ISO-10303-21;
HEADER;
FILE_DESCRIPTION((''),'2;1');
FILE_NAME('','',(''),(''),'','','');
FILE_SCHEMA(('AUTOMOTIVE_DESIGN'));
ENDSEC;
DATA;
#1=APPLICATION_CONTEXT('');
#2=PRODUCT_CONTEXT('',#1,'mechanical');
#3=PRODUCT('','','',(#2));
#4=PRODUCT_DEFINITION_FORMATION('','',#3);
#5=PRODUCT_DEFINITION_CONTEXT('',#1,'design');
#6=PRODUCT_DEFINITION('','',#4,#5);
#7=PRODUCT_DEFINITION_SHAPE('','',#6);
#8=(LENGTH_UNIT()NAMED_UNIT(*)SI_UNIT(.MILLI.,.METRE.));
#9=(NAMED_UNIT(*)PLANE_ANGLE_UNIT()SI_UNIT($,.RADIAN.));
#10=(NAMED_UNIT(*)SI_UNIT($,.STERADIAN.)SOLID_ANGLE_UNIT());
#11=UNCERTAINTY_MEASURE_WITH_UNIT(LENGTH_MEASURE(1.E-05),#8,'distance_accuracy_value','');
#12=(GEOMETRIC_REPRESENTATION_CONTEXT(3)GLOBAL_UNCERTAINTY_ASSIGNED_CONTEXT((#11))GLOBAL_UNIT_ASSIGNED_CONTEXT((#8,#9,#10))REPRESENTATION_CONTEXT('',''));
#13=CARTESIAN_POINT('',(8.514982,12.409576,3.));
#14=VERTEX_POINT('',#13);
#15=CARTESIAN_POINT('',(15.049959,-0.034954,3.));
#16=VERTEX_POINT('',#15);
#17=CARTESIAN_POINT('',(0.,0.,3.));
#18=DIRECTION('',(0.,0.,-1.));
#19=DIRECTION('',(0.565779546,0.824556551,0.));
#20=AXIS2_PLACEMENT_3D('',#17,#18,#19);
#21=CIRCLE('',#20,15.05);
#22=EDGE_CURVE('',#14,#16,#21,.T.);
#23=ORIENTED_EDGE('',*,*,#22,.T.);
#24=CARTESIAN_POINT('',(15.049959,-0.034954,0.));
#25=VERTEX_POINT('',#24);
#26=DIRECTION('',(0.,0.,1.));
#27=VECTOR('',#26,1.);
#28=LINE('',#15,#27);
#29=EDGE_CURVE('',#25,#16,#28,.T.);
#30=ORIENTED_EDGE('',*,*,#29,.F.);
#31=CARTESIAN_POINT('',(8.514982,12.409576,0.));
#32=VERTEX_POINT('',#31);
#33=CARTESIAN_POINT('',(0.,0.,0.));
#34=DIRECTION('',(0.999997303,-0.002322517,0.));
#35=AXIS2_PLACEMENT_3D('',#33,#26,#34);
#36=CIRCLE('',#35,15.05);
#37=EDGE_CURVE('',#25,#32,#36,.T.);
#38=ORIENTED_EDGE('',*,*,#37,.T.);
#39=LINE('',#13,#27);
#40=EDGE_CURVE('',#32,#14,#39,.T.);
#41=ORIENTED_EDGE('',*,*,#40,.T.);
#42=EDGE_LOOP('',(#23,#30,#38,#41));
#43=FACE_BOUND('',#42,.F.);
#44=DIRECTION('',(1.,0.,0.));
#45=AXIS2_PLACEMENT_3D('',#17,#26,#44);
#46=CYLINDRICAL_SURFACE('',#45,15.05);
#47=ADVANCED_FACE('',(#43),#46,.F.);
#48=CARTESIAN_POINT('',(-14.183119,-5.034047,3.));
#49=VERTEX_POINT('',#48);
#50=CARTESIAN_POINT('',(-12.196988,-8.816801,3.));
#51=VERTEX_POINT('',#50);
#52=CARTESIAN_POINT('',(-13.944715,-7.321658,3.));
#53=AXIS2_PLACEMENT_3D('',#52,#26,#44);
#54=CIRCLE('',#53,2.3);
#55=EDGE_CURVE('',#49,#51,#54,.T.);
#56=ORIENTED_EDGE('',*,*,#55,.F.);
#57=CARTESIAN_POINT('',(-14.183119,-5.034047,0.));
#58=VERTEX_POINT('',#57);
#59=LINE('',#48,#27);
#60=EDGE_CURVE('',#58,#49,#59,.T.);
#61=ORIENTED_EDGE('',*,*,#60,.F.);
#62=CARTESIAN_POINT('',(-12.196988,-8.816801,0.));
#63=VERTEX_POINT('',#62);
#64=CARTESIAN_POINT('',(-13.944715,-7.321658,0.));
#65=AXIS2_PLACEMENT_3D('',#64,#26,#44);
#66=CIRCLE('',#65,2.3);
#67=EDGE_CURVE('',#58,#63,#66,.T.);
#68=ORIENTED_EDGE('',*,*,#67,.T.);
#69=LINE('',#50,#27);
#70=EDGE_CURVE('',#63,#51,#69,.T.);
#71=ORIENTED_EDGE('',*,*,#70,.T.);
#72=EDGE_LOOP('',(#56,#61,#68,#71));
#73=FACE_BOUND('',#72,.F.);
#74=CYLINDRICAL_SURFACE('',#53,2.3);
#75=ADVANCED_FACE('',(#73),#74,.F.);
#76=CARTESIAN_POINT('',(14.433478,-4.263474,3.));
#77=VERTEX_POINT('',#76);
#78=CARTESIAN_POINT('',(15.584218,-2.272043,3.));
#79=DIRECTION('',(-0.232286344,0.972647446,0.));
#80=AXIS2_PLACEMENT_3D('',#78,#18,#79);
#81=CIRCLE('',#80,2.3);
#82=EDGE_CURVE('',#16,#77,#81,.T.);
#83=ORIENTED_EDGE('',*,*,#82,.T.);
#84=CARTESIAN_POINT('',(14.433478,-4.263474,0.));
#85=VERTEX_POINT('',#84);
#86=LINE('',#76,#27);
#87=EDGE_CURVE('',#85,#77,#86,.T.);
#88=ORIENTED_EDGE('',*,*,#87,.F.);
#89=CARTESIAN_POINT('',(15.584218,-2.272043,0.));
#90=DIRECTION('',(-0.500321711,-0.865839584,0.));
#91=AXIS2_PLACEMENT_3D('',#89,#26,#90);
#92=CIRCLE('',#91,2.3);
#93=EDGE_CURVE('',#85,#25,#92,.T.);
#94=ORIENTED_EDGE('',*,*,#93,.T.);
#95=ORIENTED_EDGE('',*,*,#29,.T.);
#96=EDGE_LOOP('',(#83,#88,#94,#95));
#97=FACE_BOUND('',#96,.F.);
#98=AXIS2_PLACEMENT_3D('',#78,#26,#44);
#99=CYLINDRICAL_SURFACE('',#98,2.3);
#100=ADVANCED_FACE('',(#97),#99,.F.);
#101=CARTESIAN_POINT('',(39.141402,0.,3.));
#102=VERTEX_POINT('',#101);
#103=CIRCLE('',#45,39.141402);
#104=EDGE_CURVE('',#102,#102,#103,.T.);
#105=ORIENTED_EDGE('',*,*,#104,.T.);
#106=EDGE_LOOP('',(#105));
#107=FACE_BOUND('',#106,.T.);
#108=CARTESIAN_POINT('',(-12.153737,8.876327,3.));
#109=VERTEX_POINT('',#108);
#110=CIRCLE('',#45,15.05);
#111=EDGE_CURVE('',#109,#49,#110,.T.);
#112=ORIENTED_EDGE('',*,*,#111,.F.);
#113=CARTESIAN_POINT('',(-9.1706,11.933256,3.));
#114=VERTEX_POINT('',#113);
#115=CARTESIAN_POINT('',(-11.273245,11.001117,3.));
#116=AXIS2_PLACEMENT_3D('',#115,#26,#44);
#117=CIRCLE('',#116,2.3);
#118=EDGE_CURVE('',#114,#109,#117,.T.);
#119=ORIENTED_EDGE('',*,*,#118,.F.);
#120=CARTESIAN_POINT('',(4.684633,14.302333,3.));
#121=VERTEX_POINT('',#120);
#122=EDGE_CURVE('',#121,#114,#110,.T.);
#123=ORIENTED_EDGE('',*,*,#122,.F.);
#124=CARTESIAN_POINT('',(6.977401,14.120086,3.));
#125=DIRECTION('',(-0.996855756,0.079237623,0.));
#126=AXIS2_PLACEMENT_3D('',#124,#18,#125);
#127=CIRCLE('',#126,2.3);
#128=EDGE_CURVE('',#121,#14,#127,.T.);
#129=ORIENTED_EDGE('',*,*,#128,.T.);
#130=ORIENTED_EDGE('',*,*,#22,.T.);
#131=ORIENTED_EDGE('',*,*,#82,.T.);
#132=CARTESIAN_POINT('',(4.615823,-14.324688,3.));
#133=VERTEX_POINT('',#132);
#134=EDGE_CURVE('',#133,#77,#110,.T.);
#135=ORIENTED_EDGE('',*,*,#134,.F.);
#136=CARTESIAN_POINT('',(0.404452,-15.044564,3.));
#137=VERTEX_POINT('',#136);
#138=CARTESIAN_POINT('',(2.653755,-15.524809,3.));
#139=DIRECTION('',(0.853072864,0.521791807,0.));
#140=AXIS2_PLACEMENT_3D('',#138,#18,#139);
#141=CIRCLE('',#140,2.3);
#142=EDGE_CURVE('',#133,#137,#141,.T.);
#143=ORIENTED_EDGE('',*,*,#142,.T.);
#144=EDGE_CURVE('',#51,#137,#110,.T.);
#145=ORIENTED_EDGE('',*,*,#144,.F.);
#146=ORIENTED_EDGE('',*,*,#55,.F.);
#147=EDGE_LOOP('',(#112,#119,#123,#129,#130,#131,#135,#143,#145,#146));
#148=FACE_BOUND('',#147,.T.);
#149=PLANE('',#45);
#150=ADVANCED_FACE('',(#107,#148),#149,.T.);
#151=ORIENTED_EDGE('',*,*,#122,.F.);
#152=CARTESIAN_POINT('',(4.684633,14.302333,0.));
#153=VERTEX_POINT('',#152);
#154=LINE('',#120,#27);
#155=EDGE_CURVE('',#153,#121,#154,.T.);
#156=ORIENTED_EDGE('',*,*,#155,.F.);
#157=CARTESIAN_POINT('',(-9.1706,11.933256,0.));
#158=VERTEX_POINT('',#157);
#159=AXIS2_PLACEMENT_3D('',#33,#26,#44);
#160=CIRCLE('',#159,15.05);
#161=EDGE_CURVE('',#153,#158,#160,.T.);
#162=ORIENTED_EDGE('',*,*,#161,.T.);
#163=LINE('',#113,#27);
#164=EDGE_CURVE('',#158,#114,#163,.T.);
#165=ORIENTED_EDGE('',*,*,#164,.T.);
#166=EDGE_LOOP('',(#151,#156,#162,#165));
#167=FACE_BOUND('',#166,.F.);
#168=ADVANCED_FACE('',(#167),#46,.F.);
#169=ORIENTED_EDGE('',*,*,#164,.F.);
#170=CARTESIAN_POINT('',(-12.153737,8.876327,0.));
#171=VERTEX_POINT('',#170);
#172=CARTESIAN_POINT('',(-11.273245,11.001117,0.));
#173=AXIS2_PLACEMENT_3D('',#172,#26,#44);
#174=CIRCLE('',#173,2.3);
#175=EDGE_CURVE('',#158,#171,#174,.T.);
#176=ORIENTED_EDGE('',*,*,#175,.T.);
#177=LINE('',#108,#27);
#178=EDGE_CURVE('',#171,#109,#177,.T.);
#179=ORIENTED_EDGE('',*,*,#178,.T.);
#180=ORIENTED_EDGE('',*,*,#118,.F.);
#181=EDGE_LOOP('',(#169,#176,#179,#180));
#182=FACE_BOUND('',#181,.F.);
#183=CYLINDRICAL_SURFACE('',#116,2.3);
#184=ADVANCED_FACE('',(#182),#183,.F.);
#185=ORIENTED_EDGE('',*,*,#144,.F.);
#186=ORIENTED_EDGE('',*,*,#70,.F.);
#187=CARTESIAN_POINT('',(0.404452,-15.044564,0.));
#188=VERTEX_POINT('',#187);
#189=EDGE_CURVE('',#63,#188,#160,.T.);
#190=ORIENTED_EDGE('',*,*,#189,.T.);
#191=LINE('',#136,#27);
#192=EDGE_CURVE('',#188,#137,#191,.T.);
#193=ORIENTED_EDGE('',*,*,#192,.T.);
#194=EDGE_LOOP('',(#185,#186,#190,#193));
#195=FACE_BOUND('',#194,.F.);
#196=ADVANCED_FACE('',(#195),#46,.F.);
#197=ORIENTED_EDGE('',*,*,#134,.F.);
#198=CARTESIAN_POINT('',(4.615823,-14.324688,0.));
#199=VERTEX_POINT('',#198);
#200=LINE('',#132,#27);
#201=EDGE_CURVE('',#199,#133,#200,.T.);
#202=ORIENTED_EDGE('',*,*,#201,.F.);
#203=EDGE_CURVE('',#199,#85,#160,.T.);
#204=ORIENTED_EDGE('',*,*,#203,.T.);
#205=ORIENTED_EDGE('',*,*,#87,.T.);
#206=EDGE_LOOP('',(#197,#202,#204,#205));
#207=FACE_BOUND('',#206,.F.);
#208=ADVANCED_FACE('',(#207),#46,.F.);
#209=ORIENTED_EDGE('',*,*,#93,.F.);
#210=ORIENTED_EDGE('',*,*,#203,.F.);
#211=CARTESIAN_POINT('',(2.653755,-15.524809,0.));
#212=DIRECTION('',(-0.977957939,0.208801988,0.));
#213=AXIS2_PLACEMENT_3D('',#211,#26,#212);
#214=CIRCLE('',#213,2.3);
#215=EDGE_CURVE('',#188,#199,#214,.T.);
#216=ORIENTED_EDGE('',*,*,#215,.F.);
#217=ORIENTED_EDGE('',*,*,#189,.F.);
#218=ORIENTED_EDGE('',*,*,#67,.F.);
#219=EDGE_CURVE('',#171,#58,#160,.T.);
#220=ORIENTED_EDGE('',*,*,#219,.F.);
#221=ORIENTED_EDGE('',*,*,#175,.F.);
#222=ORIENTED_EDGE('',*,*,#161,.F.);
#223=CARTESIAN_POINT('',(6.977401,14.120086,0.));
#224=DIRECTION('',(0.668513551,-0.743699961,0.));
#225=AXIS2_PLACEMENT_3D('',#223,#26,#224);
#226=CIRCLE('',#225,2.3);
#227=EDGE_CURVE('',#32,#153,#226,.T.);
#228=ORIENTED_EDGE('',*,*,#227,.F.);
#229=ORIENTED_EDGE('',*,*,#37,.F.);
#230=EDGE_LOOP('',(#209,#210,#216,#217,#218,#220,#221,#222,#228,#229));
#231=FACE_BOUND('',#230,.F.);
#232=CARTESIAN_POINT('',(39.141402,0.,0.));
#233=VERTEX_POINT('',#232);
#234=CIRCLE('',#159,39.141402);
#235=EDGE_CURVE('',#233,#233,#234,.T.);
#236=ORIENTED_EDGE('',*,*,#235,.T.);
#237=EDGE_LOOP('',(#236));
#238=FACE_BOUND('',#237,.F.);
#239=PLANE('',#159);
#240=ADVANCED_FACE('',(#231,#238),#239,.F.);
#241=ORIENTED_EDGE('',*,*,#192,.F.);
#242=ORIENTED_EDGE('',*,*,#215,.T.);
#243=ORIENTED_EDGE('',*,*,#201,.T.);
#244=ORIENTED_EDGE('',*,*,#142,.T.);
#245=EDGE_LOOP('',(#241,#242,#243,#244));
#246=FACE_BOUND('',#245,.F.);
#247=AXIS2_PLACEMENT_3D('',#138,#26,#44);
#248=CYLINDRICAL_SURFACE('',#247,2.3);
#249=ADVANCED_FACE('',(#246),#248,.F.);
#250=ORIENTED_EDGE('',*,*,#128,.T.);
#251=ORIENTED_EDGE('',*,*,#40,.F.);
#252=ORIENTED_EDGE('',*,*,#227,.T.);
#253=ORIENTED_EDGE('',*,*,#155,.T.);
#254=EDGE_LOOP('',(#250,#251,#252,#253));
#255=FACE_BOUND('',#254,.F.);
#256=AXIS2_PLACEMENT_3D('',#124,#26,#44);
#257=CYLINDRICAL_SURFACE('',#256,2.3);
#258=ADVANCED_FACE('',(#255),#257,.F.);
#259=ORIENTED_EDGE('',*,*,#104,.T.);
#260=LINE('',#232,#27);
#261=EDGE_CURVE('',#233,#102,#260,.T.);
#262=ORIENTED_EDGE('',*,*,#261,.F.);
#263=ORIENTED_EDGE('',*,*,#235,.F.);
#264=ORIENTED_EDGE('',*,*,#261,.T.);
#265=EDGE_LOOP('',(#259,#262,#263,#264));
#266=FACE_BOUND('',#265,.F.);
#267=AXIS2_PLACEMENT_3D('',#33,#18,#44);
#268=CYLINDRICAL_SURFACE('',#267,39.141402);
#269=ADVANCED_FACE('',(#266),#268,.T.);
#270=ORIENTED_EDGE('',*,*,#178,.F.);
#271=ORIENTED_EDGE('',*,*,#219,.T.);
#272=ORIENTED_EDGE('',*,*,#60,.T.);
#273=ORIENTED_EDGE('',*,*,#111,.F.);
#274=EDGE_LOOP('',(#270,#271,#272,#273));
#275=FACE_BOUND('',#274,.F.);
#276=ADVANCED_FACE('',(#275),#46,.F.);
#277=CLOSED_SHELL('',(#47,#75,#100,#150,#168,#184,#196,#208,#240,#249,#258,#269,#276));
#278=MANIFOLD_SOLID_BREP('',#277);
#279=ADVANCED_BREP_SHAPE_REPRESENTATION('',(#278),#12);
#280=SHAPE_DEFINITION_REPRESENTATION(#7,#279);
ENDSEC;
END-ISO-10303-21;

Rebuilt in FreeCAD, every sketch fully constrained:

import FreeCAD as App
import Part
import Sketcher

V = App.Vector
Q = App.Units.Quantity

doc = App.newDocument("Part")
body = doc.addObject("PartDesign::Body", "Body")

# Sketch on XY plane
sketch1 = doc.addObject("Sketcher::SketchObject", "Sketch")
body.addObject(sketch1)
sketch1.AttachmentSupport = (doc.XY_Plane, [""])
sketch1.MapMode = "FlatFace"
sketch1.addGeometry(Part.Circle(V(0, 0, 0), V(0, 0, 1), 39), False)
sketch1.addConstraint([
    Sketcher.Constraint("Coincident", 0, 3, -1, 1),
    Sketcher.Constraint("Diameter", 0, Q("78.282804 mm")),
])
pad1 = doc.addObject("PartDesign::Pad", "Pad")
body.addObject(pad1)
pad1.Profile = sketch1
pad1.Length = 3

# Sketch on XY plane
sketch2 = doc.addObject("Sketcher::SketchObject", "Sketch001")
body.addObject(sketch2)
sketch2.AttachmentSupport = (doc.XY_Plane, [""])
sketch2.MapMode = "FlatFace"
sketch2.AttachmentOffset = App.Placement(V(0, 0, 3), App.Rotation())
sketch2.addGeometry(Part.Circle(V(0, 0, 0), V(0, 0, 1), 15), False)
sketch2.addConstraint([
    Sketcher.Constraint("Coincident", 0, 3, -1, 1),
    Sketcher.Constraint("Diameter", 0, Q("30.1 mm")),
])
pocket1 = doc.addObject("PartDesign::Pocket", "Pocket")
body.addObject(pocket1)
pocket1.Profile = sketch2
pocket1.Length = 3

# Sketch on XY plane
sketch3 = doc.addObject("Sketcher::SketchObject", "Sketch002")
body.addObject(sketch3)
sketch3.AttachmentSupport = (doc.XY_Plane, [""])
sketch3.MapMode = "FlatFace"
sketch3.AttachmentOffset = App.Placement(V(0, 0, 3), App.Rotation())
sketch3.addGeometry([
    Part.Circle(V(15.6, -2.3, 0), V(0, 0, 1), 2.3),  # 0
    Part.Circle(V(2.7, -15.5, 0), V(0, 0, 1), 2.3),  # 1
    Part.Circle(V(-13.9, -7.3, 0), V(0, 0, 1), 2.3),  # 2
    Part.Circle(V(-11.3, 11, 0), V(0, 0, 1), 2.3),  # 3
    Part.Circle(V(7, 14.1, 0), V(0, 0, 1), 2.3),  # 4
], False)
sketch3.addConstraint([
    Sketcher.Constraint("Equal", 0, 1),
    Sketcher.Constraint("Equal", 1, 2),
    Sketcher.Constraint("Equal", 2, 3),
    Sketcher.Constraint("Equal", 3, 4),
    Sketcher.Constraint("Diameter", 0, Q("4.6 mm")),
    Sketcher.Constraint("DistanceX", 3, 3, 1, 3, Q("13.927 mm")),
    Sketcher.Constraint("DistanceX", -1, 1, 4, 3, Q("6.977401 mm")),
    Sketcher.Constraint("DistanceY", 1, 3, -1, 1, Q("15.524809 mm")),
    Sketcher.Constraint("DistanceY", 2, 3, -1, 1, Q("7.321658 mm")),
    Sketcher.Constraint("DistanceX", 2, 3, 1, 3, Q("16.59847 mm")),
    Sketcher.Constraint("DistanceY", 0, 3, 3, 3, Q("13.27316 mm")),
    Sketcher.Constraint("DistanceY", 0, 3, 4, 3, Q("16.392129 mm")),
    Sketcher.Constraint("DistanceX", -1, 1, 0, 3, Q("15.584218 mm")),
    Sketcher.Constraint("DistanceY", 0, 3, -1, 1, Q("2.272043 mm")),
    Sketcher.Constraint("DistanceX", -1, 1, 1, 3, Q("2.653755 mm")),
])
pocket2 = doc.addObject("PartDesign::Pocket", "Pocket001")
body.addObject(pocket2)
pocket2.Profile = sketch3
pocket2.Length = 3

doc.recompute()
